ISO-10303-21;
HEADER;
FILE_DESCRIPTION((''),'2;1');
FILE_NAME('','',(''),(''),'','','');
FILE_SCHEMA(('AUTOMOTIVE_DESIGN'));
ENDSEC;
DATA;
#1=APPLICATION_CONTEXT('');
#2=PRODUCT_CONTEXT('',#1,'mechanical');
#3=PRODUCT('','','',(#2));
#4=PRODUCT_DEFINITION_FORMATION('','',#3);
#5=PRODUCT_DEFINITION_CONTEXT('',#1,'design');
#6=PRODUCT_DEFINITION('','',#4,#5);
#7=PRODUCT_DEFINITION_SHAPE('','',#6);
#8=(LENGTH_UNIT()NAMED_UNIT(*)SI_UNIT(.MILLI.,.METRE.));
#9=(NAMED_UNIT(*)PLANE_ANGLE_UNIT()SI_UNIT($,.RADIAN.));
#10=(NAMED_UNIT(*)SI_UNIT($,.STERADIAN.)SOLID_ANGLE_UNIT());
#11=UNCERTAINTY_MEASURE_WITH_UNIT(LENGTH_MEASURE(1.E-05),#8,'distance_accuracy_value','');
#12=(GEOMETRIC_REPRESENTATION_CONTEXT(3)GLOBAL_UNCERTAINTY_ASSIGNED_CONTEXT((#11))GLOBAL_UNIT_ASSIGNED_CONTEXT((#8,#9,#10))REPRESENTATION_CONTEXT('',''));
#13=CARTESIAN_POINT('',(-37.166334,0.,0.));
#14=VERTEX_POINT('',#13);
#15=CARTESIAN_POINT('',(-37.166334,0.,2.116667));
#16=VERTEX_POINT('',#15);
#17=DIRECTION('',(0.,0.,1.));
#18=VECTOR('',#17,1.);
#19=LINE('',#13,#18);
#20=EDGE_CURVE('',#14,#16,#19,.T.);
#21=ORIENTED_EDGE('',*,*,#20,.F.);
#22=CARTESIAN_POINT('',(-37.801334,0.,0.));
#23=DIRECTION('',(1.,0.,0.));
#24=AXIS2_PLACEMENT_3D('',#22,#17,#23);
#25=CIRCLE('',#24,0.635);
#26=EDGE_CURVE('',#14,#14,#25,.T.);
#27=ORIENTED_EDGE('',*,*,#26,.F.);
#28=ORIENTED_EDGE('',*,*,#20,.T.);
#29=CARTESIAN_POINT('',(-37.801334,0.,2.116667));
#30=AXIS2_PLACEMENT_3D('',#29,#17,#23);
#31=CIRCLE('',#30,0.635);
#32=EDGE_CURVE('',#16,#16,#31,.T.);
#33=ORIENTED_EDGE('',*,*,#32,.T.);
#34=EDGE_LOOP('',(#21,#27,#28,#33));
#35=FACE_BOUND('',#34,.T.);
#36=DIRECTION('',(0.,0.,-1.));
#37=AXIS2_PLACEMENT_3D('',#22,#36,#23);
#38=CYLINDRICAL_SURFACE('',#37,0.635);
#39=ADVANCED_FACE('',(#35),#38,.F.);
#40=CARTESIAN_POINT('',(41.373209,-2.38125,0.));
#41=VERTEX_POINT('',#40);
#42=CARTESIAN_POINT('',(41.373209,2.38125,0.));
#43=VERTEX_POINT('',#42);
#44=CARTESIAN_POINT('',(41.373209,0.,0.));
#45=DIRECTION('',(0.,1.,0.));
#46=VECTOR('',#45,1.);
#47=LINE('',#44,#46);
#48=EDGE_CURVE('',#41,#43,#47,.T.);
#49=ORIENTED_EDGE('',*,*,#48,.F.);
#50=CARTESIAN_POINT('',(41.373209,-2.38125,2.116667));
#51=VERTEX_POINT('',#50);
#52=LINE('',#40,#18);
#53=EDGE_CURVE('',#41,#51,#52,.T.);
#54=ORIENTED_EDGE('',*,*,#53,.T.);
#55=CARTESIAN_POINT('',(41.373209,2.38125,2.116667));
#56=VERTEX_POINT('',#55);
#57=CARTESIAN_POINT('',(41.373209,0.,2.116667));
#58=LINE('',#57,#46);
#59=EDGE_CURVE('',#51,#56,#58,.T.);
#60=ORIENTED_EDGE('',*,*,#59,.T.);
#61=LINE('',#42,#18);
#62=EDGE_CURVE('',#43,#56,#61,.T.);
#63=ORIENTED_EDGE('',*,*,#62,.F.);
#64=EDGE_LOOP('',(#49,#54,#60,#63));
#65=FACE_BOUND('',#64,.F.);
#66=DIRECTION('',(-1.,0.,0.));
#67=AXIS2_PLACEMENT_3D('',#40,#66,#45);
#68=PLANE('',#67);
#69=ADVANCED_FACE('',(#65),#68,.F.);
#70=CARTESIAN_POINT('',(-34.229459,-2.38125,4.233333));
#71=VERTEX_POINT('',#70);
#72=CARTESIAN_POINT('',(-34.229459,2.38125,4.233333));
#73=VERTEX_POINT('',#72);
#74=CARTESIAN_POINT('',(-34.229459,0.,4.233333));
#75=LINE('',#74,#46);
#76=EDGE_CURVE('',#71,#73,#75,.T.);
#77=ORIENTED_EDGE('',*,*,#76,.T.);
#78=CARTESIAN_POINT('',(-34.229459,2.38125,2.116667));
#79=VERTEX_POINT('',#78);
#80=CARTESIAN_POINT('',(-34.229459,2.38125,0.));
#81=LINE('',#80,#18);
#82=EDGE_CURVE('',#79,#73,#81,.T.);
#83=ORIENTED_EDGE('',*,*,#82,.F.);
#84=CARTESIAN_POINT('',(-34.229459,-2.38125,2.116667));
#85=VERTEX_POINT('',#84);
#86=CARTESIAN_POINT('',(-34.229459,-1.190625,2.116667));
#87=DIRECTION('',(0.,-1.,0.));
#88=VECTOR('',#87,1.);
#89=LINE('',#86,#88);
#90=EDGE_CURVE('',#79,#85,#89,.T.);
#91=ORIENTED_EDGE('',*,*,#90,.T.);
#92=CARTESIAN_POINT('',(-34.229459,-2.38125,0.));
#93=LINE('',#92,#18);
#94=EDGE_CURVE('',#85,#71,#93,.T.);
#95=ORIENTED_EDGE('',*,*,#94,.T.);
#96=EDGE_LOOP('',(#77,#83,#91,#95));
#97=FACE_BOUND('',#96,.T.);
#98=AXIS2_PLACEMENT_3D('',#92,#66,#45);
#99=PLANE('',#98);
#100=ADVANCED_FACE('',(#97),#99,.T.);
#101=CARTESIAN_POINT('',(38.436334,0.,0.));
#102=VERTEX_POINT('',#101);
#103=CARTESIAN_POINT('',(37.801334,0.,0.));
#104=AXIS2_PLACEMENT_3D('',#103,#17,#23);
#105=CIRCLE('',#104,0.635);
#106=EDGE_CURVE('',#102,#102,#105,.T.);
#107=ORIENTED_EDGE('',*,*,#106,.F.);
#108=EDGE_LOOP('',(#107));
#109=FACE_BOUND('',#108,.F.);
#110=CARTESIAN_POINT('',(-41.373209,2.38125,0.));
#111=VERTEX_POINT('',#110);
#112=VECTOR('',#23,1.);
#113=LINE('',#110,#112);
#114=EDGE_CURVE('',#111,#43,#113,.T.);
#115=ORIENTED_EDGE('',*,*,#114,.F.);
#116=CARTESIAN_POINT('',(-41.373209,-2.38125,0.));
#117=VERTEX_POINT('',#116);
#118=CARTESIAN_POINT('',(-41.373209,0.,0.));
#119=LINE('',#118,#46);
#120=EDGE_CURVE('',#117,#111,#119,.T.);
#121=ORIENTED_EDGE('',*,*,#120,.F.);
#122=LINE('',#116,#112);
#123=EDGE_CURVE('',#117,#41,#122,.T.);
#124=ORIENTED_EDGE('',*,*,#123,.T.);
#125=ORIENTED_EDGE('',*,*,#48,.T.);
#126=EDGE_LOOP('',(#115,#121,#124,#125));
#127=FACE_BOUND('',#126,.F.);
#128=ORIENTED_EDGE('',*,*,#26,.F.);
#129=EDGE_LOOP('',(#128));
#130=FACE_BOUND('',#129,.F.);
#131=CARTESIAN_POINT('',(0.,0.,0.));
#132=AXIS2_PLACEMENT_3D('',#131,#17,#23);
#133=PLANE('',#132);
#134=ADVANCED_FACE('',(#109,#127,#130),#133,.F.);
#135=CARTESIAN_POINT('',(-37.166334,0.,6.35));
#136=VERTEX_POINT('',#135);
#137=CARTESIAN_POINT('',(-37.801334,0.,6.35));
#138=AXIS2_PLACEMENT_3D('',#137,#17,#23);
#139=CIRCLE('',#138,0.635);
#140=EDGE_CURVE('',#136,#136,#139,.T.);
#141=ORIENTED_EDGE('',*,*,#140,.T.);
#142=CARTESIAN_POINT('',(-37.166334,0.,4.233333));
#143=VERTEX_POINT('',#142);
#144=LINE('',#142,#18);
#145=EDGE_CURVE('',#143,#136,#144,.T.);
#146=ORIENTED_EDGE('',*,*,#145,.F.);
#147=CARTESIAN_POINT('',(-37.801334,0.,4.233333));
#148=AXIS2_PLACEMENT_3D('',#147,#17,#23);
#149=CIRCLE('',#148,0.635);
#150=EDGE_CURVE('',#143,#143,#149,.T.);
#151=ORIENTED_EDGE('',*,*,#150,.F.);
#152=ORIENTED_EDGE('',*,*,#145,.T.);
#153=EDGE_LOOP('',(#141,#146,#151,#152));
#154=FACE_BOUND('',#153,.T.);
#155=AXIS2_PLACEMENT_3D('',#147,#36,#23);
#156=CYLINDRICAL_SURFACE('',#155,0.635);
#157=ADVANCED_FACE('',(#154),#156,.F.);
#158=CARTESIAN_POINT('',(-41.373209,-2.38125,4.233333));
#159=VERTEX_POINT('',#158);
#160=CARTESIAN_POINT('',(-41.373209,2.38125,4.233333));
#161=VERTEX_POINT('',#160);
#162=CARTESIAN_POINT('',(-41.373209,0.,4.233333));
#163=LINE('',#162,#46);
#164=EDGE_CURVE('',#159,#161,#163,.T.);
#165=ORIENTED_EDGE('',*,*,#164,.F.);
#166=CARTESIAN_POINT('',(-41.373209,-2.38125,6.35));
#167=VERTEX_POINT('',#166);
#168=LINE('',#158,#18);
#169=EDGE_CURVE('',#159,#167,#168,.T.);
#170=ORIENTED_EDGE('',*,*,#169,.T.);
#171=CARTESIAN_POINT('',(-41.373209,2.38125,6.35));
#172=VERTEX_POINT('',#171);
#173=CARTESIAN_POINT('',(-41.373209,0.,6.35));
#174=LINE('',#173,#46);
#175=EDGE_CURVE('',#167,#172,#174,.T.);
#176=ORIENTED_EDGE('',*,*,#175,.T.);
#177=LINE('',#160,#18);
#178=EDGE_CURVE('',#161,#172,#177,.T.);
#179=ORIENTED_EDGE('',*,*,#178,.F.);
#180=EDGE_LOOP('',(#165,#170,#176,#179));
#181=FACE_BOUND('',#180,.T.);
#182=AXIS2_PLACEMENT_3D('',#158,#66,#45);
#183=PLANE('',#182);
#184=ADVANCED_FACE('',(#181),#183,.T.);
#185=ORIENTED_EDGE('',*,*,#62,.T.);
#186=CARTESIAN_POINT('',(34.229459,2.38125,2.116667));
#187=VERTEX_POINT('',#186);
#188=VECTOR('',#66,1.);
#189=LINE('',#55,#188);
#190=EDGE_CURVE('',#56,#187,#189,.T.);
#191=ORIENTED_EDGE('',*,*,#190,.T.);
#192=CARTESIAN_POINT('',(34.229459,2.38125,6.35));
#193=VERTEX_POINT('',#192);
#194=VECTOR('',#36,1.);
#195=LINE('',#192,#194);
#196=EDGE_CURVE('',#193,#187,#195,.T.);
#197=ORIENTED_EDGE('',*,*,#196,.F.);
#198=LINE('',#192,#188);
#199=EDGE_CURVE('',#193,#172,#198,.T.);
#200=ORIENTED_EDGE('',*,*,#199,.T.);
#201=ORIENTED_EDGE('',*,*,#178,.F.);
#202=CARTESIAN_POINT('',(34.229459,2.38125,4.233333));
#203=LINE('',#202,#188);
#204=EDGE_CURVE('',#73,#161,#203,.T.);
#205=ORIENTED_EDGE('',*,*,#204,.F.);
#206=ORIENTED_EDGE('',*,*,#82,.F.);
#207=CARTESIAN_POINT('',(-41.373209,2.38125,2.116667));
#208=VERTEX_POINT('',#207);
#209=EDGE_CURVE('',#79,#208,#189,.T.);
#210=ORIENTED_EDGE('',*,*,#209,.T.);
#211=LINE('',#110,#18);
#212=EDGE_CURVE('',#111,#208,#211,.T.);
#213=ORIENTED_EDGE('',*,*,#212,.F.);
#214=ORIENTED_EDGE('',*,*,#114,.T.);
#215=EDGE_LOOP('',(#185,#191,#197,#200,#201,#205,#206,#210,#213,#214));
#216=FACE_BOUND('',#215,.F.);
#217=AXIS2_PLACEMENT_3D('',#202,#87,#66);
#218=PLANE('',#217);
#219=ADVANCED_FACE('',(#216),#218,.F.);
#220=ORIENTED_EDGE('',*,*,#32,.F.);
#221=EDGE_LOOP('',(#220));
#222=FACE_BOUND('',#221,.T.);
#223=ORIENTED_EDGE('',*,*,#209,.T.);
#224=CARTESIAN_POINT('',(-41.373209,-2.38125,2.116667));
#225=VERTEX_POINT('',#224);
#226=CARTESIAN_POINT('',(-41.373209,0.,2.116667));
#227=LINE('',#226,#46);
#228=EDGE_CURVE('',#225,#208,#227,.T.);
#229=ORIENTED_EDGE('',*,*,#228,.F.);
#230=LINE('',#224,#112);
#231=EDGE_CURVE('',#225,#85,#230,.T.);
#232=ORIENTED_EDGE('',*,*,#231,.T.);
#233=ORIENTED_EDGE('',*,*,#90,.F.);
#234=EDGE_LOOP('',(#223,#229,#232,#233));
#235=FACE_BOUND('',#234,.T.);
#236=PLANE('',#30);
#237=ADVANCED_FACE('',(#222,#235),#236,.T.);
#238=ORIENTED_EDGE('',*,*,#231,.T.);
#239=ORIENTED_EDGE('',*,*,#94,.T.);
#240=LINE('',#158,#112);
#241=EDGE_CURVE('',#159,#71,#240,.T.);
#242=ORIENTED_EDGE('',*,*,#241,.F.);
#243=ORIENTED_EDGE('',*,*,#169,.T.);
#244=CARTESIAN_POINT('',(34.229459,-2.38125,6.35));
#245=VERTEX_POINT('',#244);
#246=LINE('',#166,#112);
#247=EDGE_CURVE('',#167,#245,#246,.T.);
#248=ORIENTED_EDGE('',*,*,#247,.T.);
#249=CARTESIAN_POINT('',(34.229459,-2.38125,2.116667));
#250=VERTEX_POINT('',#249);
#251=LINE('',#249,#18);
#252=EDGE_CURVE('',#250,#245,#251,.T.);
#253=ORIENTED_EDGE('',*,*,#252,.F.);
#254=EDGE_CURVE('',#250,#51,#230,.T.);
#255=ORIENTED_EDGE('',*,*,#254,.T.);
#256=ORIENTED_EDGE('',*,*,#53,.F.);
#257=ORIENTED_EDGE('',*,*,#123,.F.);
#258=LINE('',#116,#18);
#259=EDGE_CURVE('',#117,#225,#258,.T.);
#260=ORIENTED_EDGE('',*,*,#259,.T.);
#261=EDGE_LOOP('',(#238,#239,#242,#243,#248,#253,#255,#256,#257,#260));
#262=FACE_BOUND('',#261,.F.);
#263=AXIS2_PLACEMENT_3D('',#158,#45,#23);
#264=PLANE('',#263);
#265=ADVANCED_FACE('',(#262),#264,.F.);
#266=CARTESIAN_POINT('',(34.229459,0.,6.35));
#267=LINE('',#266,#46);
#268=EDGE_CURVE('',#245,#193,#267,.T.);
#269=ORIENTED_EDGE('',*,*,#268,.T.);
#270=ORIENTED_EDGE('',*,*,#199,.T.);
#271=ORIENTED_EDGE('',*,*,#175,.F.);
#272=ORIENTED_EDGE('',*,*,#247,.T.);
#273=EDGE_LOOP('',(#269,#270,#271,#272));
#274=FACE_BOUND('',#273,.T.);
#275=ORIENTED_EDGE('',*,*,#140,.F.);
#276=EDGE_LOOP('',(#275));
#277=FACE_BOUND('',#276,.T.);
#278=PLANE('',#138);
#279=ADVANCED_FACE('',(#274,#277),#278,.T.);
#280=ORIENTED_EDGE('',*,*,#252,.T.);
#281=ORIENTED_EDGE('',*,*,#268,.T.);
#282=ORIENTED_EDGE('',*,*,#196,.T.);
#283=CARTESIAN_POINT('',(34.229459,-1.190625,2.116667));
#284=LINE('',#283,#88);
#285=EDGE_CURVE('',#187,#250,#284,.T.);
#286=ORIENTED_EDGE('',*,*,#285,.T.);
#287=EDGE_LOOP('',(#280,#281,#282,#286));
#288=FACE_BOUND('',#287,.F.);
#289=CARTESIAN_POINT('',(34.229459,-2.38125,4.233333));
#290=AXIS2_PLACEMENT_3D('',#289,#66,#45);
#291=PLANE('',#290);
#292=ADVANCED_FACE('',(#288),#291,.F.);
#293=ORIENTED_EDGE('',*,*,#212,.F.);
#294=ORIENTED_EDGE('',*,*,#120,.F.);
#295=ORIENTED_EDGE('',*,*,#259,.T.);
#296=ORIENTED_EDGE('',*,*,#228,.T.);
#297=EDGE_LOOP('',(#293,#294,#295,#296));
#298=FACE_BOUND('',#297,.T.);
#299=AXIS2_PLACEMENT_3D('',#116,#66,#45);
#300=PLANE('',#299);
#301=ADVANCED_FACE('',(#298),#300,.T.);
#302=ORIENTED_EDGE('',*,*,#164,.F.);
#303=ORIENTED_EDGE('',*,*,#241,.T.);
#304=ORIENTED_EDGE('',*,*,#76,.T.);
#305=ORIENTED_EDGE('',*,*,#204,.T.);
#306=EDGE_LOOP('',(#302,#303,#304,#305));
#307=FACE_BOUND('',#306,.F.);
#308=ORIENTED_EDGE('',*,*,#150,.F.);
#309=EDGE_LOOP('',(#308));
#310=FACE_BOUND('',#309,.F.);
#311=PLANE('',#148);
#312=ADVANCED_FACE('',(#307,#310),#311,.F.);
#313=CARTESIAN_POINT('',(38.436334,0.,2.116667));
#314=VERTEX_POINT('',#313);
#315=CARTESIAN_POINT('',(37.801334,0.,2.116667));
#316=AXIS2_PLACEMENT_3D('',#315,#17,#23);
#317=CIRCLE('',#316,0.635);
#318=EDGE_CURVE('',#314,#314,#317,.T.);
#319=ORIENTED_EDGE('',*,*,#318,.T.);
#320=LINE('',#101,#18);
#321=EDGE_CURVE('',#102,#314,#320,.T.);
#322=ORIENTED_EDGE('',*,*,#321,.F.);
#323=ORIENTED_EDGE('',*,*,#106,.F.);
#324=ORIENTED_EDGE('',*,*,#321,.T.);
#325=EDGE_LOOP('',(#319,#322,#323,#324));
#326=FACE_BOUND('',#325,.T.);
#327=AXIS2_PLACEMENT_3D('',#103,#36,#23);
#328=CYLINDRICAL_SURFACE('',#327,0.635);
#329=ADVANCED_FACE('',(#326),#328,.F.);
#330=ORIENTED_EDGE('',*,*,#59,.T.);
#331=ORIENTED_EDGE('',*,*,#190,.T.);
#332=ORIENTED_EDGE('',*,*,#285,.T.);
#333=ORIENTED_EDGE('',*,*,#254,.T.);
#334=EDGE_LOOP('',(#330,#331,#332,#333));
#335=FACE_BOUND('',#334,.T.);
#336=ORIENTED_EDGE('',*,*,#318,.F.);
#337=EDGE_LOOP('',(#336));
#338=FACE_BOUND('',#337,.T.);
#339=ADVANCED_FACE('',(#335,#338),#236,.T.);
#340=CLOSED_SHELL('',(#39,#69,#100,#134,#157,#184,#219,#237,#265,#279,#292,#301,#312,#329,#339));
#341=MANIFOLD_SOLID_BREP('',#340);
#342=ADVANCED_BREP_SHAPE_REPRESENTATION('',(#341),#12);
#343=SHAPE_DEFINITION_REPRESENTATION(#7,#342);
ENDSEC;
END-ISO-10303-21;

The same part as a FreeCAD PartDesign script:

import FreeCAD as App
import Part
import Sketcher

V = App.Vector
Q = App.Units.Quantity


def add_polygon(sketch, points):
    """Adds a closed chain of lines whose ends are joined by coincident constraints."""
    first, n = sketch.GeometryCount, len(points)
    for a, b in zip(points, points[1:] + points[:1]):
        sketch.addGeometry(Part.LineSegment(App.Vector(*a, 0), App.Vector(*b, 0)), False)
    for i in range(n):
        sketch.addConstraint(Sketcher.Constraint("Coincident", first + i, 2, first + (i + 1) % n, 1))

doc = App.newDocument("Part")
body = doc.addObject("PartDesign::Body", "Body")

sketch1 = body.newObject("Sketcher::SketchObject", "Sketch")
sketch1.AttachmentSupport = (doc.getObject("XY_Plane"), [""])
sketch1.MapMode = "FlatFace"
add_polygon(sketch1, [(-41.4, 2.4), (-41.4, -2.4), (41.4, -2.4), (41.4, 2.4)])
sketch1.addGeometry(Part.Circle(V(-37.8, 0, 0), V(0, 0, 1), 0.6), False)
sketch1.addGeometry(Part.Circle(V(37.8, 0, 0), V(0, 0, 1), 0.6), False)
sketch1.addConstraint([
    Sketcher.Constraint("Vertical", 0),
    Sketcher.Constraint("Horizontal", 1),
    Sketcher.Constraint("Vertical", 2),
    Sketcher.Constraint("Horizontal", 3),
    Sketcher.Constraint("Equal", 4, 5),
    Sketcher.Constraint("Symmetric", 4, 3, 5, 3, -1, 1),
    Sketcher.Constraint("Symmetric", 0, 2, 2, 2, -1, 1),
    Sketcher.Constraint("PointOnObject", 4, 3, -1),
    Sketcher.Constraint("Diameter", 4, Q("0.05 in")),
    Sketcher.Constraint("DistanceY", 0, 2, 0, 1, Q("0.1875 in")),
    Sketcher.Constraint("DistanceX", 0, 2, 4, 3, Q("0.140625 in")),
    Sketcher.Constraint("DistanceX", 1, 1, 1, 2, Q("82.746418 mm")),
])
pad1 = body.newObject("PartDesign::Pad", "Pad")
pad1.Profile = sketch1
pad1.Length = 2.116667

sketch2 = body.newObject("Sketcher::SketchObject", "Sketch001")
sketch2.AttachmentSupport = (doc.getObject("XY_Plane"), [""])
sketch2.MapMode = "FlatFace"
add_polygon(sketch2, [(-34.2, 2.4), (-34.2, -2.4), (34.2, -2.4), (34.2, 2.4)])
sketch2.addConstraint([
    Sketcher.Constraint("Vertical", 0),
    Sketcher.Constraint("Horizontal", 1),
    Sketcher.Constraint("Vertical", 2),
    Sketcher.Constraint("Horizontal", 3),
    Sketcher.Constraint("Symmetric", 0, 2, 2, 2, -1, 1),
    Sketcher.Constraint("DistanceY", 0, 2, 0, 1, Q("0.1875 in")),
    Sketcher.Constraint("DistanceX", 1, 1, 1, 2, Q("68.458918 mm")),
])
pad2 = body.newObject("PartDesign::Pad", "Pad001")
pad2.Profile = sketch2
pad2.Length = 4.233333

sketch3 = body.newObject("Sketcher::SketchObject", "Sketch002")
sketch3.AttachmentSupport = (doc.getObject("XY_Plane"), [""])
sketch3.MapMode = "FlatFace"
sketch3.AttachmentOffset = App.Placement(V(0, 0, 4.233333), App.Rotation())
add_polygon(sketch3, [(-41.4, 2.4), (-41.4, -2.4), (34.2, -2.4), (34.2, 2.4)])
sketch3.addGeometry(Part.Circle(V(-37.8, 0, 0), V(0, 0, 1), 0.6), False)
sketch3.addConstraint([
    Sketcher.Constraint("Vertical", 0),
    Sketcher.Constraint("Horizontal", 1),
    Sketcher.Constraint("Vertical", 2),
    Sketcher.Constraint("Horizontal", 3),
    Sketcher.Constraint("PointOnObject", 4, 3, -1),
    Sketcher.Constraint("Diameter", 4, Q("0.05 in")),
    Sketcher.Constraint("DistanceY", 0, 2, 0, 1, Q("0.1875 in")),
    Sketcher.Constraint("DistanceY", 0, 2, -1, 1, Q("0.09375 in")),
    Sketcher.Constraint("DistanceX", 0, 2, 4, 3, Q("0.140625 in")),
    Sketcher.Constraint("DistanceX", 1, 1, 1, 2, Q("75.602668 mm")),
    Sketcher.Constraint("DistanceX", 0, 2, -1, 1, Q("41.373209 mm")),
])
pad3 = body.newObject("PartDesign::Pad", "Pad002")
pad3.Profile = sketch3
pad3.Length = 2.116667

doc.recompute()
